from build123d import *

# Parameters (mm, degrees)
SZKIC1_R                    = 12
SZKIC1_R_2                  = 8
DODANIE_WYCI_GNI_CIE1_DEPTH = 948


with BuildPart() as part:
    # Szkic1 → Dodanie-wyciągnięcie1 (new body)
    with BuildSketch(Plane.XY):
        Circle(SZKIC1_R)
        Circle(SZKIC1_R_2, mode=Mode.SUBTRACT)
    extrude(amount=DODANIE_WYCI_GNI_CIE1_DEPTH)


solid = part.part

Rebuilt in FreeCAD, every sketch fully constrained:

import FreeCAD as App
import Part
import Sketcher

doc = App.newDocument("Part")
params = doc.addObject("Spreadsheet::Sheet", "Params")
for row, (alias, value) in enumerate([
    ("sketch1_diameter", "24 mm"),
    ("sketch1_diameter2", "16 mm"),
    ("pad1_length", "948 mm"),
], start=1):
    params.set(f"A{row}", alias)
    params.set(f"B{row}", "=" + value)
    params.setAlias(f"B{row}", alias)

body = doc.addObject("PartDesign::Body", "Body")

# Sketch on XY plane
sketch1 = body.newObject("Sketcher::SketchObject", "Sketch")
sketch1.AttachmentSupport = (doc.getObject("XY_Plane"), [""])
sketch1.MapMode = "FlatFace"
sketch1.addGeometry([
    Part.Circle(App.Vector(0, 0, 0), App.Vector(0, 0, 1), 12),
    Part.Circle(App.Vector(0, 0, 0), App.Vector(0, 0, 1), 8),
], False)
sketch1.addConstraint([
    Sketcher.Constraint("Coincident", 0, 3, -1, 1),
    Sketcher.Constraint("Coincident", 1, 3, -1, 1),
    Sketcher.Constraint("Diameter", 0, 24.0),
    Sketcher.Constraint("Diameter", 1, 16.0),
])
sketch1.setExpression("Constraints[2]", "Params.sketch1_diameter")
sketch1.setExpression("Constraints[3]", "Params.sketch1_diameter2")
pad1 = body.newObject("PartDesign::Pad", "Pad")
pad1.Profile = sketch1
pad1.setExpression("Length", "Params.pad1_length")

doc.recompute()
